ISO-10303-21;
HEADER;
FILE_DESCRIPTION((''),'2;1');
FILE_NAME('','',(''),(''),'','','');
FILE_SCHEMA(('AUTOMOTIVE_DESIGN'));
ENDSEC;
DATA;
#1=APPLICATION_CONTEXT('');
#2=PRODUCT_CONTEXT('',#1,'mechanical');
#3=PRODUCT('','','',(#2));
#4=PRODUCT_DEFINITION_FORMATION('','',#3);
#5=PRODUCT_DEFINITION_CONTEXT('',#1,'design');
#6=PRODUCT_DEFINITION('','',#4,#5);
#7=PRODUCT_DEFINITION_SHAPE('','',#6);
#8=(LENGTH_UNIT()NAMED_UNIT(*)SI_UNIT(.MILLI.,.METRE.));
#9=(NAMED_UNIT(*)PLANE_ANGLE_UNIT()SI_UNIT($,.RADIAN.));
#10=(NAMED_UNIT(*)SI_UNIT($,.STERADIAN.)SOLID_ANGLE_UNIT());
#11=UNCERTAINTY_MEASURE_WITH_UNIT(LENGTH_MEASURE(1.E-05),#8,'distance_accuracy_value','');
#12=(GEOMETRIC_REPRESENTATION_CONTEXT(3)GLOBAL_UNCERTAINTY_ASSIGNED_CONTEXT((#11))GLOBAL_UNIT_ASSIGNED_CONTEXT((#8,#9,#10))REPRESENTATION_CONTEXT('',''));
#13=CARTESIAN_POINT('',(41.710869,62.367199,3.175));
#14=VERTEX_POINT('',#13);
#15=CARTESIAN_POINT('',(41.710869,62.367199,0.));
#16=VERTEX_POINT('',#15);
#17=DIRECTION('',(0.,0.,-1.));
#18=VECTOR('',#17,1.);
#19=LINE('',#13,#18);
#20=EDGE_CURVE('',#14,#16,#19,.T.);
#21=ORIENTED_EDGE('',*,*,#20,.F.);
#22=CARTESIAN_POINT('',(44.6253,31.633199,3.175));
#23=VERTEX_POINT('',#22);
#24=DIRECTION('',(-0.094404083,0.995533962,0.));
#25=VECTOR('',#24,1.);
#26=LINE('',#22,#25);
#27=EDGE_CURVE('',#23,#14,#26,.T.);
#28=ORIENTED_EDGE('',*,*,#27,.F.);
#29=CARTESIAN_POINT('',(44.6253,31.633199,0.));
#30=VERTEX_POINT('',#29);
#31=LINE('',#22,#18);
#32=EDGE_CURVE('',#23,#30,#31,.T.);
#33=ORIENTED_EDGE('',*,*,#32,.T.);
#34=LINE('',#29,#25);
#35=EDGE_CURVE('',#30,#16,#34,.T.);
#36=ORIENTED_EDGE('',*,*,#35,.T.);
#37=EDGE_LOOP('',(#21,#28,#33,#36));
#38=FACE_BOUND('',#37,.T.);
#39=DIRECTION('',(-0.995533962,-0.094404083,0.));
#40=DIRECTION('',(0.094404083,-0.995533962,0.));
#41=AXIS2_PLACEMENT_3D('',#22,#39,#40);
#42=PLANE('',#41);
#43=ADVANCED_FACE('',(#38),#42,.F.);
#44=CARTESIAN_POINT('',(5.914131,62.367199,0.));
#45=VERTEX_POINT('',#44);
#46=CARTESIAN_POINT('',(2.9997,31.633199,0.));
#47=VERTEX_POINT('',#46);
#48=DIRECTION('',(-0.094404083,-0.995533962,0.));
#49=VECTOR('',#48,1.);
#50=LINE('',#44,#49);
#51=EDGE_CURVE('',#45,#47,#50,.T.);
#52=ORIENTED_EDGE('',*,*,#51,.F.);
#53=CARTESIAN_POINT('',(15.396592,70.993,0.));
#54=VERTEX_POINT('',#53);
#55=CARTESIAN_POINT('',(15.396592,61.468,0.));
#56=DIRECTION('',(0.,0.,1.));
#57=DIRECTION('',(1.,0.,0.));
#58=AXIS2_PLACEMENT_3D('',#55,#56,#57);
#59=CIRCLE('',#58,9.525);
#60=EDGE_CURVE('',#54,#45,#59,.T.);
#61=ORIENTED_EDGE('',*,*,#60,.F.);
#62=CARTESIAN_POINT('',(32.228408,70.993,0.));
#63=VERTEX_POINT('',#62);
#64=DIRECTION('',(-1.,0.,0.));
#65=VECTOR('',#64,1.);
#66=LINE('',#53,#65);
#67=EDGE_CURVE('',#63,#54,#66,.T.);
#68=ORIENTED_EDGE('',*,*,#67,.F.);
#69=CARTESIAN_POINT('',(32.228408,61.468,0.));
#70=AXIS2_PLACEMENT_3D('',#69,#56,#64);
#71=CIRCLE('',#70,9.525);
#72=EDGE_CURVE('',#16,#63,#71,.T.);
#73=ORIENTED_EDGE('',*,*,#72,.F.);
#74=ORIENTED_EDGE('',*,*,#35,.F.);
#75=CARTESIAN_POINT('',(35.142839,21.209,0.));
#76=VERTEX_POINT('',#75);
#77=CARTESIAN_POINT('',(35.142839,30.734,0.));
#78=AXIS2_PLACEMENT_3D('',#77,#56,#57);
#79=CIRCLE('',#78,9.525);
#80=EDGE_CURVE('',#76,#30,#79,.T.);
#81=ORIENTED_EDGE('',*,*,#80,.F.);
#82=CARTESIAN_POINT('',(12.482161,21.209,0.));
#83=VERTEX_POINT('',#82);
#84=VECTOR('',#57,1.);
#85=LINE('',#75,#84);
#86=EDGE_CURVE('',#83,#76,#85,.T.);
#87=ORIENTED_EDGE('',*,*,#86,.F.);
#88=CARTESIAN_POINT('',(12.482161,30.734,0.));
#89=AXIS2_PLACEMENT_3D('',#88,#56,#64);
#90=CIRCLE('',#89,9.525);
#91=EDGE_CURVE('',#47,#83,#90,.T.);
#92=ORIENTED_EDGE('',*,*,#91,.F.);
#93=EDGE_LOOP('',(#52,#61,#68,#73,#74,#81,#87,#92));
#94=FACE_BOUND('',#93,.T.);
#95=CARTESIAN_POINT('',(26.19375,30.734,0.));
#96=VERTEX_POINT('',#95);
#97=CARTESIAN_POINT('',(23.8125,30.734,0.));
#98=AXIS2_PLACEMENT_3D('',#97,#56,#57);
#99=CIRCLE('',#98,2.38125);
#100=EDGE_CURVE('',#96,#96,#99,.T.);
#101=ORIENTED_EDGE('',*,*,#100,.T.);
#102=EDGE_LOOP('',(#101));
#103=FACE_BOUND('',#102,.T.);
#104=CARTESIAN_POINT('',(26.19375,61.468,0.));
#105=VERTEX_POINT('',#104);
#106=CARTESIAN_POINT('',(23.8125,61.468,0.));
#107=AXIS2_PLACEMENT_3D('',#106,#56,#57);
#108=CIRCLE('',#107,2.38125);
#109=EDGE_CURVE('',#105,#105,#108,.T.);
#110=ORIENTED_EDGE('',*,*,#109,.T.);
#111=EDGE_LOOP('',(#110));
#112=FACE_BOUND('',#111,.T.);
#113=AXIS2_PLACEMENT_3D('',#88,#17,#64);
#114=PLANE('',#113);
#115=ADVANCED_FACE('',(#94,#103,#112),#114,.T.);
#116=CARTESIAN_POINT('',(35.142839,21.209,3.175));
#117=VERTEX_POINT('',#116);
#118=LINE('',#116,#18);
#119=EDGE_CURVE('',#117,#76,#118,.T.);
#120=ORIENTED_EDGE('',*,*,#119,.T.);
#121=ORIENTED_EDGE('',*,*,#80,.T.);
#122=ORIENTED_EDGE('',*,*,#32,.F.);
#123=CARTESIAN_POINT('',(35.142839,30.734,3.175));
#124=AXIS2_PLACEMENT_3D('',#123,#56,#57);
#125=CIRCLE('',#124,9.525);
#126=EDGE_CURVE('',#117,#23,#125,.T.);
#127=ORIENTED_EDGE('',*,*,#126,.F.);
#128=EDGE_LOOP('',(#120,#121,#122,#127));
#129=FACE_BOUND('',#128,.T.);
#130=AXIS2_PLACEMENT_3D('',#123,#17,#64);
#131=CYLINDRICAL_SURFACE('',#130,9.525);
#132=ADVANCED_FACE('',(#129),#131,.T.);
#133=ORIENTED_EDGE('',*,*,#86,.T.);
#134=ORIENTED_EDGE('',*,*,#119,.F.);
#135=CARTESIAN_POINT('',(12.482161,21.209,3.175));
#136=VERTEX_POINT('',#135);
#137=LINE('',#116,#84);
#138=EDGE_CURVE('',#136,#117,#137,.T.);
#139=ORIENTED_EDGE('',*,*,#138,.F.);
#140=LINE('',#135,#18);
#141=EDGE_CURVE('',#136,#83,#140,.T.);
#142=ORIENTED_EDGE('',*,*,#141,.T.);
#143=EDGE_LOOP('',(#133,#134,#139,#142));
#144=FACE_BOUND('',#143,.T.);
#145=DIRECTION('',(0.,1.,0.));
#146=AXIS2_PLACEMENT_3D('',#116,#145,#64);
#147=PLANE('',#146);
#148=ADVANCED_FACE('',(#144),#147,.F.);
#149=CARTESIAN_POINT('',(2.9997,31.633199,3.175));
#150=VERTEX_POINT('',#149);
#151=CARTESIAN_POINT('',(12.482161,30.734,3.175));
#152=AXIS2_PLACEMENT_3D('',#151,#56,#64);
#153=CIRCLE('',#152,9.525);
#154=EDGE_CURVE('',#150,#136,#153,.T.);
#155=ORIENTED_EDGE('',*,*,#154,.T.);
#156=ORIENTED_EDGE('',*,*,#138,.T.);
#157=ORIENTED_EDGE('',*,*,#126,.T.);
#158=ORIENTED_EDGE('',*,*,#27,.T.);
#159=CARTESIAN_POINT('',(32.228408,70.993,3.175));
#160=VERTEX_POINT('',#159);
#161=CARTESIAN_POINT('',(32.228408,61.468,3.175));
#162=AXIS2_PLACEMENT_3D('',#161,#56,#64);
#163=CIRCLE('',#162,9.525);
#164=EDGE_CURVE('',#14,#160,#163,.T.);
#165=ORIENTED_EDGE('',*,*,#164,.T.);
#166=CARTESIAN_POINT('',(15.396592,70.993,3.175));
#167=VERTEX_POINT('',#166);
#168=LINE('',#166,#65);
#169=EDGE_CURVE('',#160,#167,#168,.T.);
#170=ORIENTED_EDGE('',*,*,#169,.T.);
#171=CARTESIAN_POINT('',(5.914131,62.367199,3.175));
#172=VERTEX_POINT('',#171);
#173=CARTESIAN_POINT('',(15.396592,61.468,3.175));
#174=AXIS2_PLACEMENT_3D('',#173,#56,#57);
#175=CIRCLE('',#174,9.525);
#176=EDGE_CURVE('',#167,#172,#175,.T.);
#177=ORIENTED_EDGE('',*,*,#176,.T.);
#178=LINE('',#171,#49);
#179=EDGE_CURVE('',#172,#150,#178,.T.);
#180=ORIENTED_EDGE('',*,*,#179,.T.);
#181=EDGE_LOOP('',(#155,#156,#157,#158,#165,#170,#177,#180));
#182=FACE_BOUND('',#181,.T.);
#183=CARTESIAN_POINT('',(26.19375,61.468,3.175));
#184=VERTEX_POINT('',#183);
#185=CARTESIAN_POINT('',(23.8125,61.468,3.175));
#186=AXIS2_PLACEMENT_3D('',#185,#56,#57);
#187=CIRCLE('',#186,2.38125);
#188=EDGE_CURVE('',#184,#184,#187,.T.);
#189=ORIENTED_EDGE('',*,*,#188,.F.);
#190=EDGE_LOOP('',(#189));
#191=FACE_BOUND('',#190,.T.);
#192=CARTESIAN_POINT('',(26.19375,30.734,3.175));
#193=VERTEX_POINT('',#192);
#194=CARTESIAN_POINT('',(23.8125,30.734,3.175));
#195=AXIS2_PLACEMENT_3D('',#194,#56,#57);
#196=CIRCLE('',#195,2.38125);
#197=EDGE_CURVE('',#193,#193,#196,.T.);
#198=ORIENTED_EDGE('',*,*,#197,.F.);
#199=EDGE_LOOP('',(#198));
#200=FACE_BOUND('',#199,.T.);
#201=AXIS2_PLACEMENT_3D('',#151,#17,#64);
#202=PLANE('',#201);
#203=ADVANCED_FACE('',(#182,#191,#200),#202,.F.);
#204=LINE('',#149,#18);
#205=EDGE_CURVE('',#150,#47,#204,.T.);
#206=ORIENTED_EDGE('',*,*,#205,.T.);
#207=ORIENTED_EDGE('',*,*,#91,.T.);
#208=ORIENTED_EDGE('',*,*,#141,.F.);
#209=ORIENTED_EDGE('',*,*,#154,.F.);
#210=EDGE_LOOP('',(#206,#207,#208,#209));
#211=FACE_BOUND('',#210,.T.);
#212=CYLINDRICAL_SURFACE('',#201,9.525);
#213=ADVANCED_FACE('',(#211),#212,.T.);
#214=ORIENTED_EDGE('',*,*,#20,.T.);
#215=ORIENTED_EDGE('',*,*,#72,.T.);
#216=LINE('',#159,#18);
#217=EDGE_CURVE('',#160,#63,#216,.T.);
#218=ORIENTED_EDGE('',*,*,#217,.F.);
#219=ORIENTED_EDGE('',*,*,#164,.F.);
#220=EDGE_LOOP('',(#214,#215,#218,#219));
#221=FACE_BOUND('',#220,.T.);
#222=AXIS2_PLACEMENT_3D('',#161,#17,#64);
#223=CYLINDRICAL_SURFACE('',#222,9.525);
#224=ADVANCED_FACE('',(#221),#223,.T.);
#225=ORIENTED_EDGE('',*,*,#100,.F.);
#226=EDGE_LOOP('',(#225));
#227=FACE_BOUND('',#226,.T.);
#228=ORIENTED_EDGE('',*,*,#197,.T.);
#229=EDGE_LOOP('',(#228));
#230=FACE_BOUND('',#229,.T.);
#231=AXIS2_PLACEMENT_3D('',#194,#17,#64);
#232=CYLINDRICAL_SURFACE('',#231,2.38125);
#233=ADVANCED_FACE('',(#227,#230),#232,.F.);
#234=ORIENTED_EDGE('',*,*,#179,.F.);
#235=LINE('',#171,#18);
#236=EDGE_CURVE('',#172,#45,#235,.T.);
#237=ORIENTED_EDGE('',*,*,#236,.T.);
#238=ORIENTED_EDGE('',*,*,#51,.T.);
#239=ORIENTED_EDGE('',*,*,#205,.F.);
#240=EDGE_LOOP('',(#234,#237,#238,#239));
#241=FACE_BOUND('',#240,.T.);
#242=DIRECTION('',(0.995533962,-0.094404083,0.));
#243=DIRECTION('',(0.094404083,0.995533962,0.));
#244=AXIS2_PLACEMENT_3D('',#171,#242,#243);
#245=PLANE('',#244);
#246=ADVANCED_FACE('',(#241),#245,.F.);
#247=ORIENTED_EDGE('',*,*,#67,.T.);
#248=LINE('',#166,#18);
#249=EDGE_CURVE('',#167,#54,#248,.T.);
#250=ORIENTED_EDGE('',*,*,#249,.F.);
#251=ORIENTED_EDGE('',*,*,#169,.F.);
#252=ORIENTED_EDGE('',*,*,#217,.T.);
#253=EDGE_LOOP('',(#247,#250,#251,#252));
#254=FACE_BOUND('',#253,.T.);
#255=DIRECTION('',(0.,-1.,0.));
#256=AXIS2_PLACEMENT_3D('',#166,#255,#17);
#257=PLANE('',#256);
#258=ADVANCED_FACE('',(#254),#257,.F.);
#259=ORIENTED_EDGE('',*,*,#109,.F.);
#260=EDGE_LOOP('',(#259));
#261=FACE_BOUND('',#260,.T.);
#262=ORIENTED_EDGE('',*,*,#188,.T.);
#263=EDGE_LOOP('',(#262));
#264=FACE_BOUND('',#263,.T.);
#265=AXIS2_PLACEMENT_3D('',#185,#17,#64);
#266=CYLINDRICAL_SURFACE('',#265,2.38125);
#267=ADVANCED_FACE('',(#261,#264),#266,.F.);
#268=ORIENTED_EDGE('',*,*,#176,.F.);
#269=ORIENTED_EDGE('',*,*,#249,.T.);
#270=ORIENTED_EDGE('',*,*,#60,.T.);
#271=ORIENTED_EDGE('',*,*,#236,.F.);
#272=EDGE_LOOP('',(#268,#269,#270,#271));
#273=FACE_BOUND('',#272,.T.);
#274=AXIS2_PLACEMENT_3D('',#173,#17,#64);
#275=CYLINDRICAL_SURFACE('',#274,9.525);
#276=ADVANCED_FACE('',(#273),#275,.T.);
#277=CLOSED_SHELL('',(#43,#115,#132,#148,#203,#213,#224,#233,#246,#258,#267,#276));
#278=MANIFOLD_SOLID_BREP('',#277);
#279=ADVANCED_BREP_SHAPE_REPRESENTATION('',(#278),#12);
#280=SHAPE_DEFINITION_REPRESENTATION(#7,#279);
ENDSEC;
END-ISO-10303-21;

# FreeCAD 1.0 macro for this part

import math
import FreeCAD as App
import Part
import Sketcher
Q = App.Units.Quantity

doc = App.newDocument("Part")
params = doc.addObject("Spreadsheet::Sheet", "Params")
for row, (alias, value) in enumerate([
    ("sketch1_diameter", "0.1875 in"),
    ("sketch1_radius", "0.375 in"),
    ("pad1_length", "0.125 in"),
], start=1):
    params.set(f"A{row}", alias)
    params.set(f"B{row}", "=" + value)
    params.setAlias(f"B{row}", alias)

body = doc.addObject("PartDesign::Body", "Body")

sketch1 = body.newObject("Sketcher::SketchObject", "Sketch")
sketch1.AttachmentSupport = (doc.getObject("XY_Plane"), [""])
sketch1.MapMode = "FlatFace"
sketch1.addGeometry(Part.LineSegment(App.Vector(44.6, 31.6, 0), App.Vector(41.7, 62.4, 0)), False)
sketch1.addGeometry(Part.ArcOfCircle(Part.Circle(App.Vector(32.2, 61.5, 0), App.Vector(0, 0, 1), 9.5), math.radians(5), math.radians(90)), False)
sketch1.addGeometry(Part.LineSegment(App.Vector(32.2, 71, 0), App.Vector(15.4, 71, 0)), False)
sketch1.addGeometry(Part.ArcOfCircle(Part.Circle(App.Vector(15.4, 61.5, 0), App.Vector(0, 0, 1), 9.5), math.radians(90), math.radians(175)), False)
sketch1.addGeometry(Part.LineSegment(App.Vector(5.9, 62.4, 0), App.Vector(3, 31.6, 0)), False)
sketch1.addGeometry(Part.ArcOfCircle(Part.Circle(App.Vector(12.5, 30.7, 0), App.Vector(0, 0, 1), 9.5), math.radians(175), math.radians(270)), False)
sketch1.addGeometry(Part.LineSegment(App.Vector(12.5, 21.2, 0), App.Vector(35.1, 21.2, 0)), False)
sketch1.addGeometry(Part.ArcOfCircle(Part.Circle(App.Vector(35.1, 30.7, 0), App.Vector(0, 0, 1), 9.5), math.radians(-90), math.radians(5)), False)
sketch1.addGeometry(Part.Circle(App.Vector(23.8, 30.7, 0), App.Vector(0, 0, 1), 2.4), False)
sketch1.addGeometry(Part.Circle(App.Vector(23.8, 61.5, 0), App.Vector(0, 0, 1), 2.4), False)
sketch1.addConstraint(Sketcher.Constraint("Tangent", 0, 2, 1, 1))
sketch1.addConstraint(Sketcher.Constraint("Tangent", 1, 2, 2, 1))
sketch1.addConstraint(Sketcher.Constraint("Tangent", 2, 2, 3, 1))
sketch1.addConstraint(Sketcher.Constraint("Tangent", 3, 2, 4, 1))
sketch1.addConstraint(Sketcher.Constraint("Tangent", 4, 2, 5, 1))
sketch1.addConstraint(Sketcher.Constraint("Tangent", 5, 2, 6, 1))
sketch1.addConstraint(Sketcher.Constraint("Tangent", 6, 2, 7, 1))
sketch1.addConstraint(Sketcher.Constraint("Tangent", 7, 2, 0, 1))
sketch1.addConstraint(Sketcher.Constraint("Horizontal", 2))
sketch1.addConstraint(Sketcher.Constraint("Horizontal", 6))
sketch1.addConstraint(Sketcher.Constraint("Equal", 1, 3))
sketch1.addConstraint(Sketcher.Constraint("Equal", 3, 5))
sketch1.addConstraint(Sketcher.Constraint("Equal", 5, 7))
sketch1.addConstraint(Sketcher.Constraint("Equal", 8, 9))
sketch1.addConstraint(Sketcher.Constraint("Horizontal", 7, 3, 8, 3))
sketch1.addConstraint(Sketcher.Constraint("Horizontal", 3, 3, 9, 3))
sketch1.addConstraint(Sketcher.Constraint("Horizontal", 0, 2, 3, 2))
sketch1.addConstraint(Sketcher.Constraint("Vertical", 8, 3, 9, 3))
sketch1.addConstraint(Sketcher.Constraint("Diameter", 8, Q("0.1875 in")))
sketch1.addConstraint(Sketcher.Constraint("Radius", 1, Q("0.375 in")))
sketch1.addConstraint(Sketcher.Constraint("DistanceY", -1, 1, 1, 3, Q("2.42 in")))
sketch1.addConstraint(Sketcher.Constraint("DistanceY", -1, 1, 5, 3, Q("1.21 in")))
sketch1.addConstraint(Sketcher.Constraint("DistanceX", -1, 1, 8, 3, Q("0.9375 in")))
sketch1.addConstraint(Sketcher.Constraint("DistanceX", 6, 1, 6, 2, Q("22.660678 mm")))
sketch1.addConstraint(Sketcher.Constraint("DistanceY", -1, 1, 0, 2, Q("62.367199 mm")))
sketch1.addConstraint(Sketcher.Constraint("DistanceX", -1, 1, 4, 2, Q("2.9997 mm")))
sketch1.setExpression("Constraints[18]", "Params.sketch1_diameter")
sketch1.setExpression("Constraints[19]", "Params.sketch1_radius")
pad1 = body.newObject("PartDesign::Pad", "Pad")
pad1.Profile = sketch1
pad1.setExpression("Length", "Params.pad1_length")

doc.recompute()
